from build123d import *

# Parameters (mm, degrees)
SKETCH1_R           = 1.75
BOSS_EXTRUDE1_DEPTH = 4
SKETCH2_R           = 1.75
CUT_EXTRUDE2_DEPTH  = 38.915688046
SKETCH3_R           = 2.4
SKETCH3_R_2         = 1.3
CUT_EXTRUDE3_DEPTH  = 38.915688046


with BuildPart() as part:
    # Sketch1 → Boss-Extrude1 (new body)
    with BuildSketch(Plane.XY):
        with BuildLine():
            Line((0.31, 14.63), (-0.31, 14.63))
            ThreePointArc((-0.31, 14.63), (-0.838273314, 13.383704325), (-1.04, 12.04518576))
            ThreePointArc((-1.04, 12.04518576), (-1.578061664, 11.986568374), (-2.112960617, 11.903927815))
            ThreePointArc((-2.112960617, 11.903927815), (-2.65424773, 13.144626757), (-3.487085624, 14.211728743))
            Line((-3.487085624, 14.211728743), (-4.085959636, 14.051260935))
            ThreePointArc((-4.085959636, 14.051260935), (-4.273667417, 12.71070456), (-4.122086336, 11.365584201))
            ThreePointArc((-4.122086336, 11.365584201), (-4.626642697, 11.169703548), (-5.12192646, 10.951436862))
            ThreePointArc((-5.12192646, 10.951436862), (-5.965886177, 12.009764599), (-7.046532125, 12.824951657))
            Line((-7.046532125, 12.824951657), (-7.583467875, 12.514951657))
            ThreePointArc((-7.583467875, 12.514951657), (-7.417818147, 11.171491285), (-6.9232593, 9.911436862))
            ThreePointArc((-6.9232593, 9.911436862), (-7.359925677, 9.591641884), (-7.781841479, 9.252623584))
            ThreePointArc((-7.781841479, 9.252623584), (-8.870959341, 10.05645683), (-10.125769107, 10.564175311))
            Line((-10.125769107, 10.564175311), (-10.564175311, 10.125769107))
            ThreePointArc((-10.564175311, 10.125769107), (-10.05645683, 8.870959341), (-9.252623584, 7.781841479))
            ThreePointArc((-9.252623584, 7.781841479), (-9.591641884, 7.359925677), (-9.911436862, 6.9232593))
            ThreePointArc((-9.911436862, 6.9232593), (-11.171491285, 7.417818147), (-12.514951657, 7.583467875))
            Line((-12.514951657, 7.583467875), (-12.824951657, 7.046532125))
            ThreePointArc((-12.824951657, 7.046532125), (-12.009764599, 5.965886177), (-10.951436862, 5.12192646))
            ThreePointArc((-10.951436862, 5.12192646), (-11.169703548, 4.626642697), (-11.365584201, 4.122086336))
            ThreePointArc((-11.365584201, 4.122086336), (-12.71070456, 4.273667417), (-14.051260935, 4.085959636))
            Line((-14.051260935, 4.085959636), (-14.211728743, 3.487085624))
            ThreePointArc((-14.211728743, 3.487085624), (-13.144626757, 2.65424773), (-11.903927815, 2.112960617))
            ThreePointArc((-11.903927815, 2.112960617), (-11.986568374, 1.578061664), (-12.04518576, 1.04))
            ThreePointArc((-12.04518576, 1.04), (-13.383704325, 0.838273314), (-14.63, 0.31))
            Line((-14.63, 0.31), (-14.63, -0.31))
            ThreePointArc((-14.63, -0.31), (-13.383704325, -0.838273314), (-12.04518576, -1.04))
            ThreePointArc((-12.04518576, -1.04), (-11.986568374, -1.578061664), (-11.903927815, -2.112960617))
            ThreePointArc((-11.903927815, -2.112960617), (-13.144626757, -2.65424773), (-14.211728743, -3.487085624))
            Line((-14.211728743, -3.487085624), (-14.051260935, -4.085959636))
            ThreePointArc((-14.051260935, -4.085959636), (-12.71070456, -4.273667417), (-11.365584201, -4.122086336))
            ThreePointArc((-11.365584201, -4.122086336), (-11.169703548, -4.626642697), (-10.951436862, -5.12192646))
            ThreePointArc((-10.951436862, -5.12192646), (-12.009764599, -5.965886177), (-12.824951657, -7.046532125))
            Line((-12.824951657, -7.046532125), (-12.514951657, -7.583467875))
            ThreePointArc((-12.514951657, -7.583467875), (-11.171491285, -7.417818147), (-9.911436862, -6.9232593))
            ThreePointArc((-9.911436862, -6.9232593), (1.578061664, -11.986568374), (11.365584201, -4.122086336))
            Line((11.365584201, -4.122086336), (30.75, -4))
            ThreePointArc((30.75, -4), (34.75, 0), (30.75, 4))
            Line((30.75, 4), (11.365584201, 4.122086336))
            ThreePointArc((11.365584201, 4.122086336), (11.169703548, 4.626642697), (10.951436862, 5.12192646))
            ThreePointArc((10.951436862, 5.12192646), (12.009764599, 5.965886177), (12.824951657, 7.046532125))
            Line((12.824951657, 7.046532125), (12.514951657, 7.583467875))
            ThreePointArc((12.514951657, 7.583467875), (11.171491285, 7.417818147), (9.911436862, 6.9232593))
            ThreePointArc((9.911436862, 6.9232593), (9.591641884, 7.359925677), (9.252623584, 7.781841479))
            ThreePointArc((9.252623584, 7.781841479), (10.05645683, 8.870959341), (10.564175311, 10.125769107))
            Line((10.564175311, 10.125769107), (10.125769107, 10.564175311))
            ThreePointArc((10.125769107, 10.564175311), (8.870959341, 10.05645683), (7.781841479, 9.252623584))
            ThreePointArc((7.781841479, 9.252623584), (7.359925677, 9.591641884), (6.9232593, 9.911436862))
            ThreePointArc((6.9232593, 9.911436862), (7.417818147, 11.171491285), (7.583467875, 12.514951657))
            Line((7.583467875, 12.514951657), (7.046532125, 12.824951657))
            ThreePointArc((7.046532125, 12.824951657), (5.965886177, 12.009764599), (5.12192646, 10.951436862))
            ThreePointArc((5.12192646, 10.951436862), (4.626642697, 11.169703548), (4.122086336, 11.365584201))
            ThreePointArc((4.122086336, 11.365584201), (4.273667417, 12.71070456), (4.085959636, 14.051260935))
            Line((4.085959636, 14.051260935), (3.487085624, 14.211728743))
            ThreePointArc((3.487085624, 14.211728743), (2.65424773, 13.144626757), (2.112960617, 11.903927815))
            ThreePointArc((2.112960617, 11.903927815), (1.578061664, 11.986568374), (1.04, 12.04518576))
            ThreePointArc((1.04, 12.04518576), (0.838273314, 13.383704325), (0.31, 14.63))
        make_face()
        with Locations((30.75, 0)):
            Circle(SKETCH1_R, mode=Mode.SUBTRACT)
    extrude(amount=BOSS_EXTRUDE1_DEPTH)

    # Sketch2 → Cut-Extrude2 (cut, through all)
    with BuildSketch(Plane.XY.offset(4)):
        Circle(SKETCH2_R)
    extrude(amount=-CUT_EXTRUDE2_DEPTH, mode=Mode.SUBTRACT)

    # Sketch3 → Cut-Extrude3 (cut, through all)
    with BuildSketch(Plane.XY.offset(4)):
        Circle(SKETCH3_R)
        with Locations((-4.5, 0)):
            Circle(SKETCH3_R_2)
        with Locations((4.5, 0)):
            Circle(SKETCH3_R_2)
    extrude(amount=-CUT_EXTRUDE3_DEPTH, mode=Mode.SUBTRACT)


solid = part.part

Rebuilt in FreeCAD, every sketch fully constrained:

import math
import FreeCAD as App
import Part
import Sketcher
Q = App.Units.Quantity

doc = App.newDocument("Part")
body = doc.addObject("PartDesign::Body", "Body")

sketch1 = doc.addObject("Sketcher::SketchObject", "Sketch")
body.addObject(sketch1)
sketch1.AttachmentSupport = (doc.XY_Plane, [""])
sketch1.MapMode = "FlatFace"
sketch1.addGeometry([
    Part.LineSegment(App.Vector(0.31, 14.63, 0), App.Vector(-0.31, 14.63, 0)),
    Part.ArcOfCircle(Part.Circle(App.Vector(4.358456, 11.916051, 0), App.Vector(0, 0, 1), 5.4), math.radians(149.828948), math.radians(178.629703)),
    Part.ArcOfCircle(Part.Circle(App.Vector(0, 0, 0), App.Vector(0, 0, 1), 12.09), math.radians(94.934768), math.radians(100.065232)),
    Part.ArcOfCircle(Part.Circle(App.Vector(-7.294046, 10.38197, 0), App.Vector(0, 0, 1), 5.4), math.radians(16.370297), math.radians(45.171052)),
    Part.LineSegment(App.Vector(-3.487086, 14.211729, 0), App.Vector(-4.08596, 14.051261, 0)),
    Part.ArcOfCircle(Part.Circle(App.Vector(1.125844, 12.638072, 0), App.Vector(0, 0, 1), 5.4), math.radians(164.828948), math.radians(193.629703)),
    Part.ArcOfCircle(Part.Circle(App.Vector(0, 0, 0), App.Vector(0, 0, 1), 12.09), math.radians(109.934768), math.radians(115.065232)),
    Part.ArcOfCircle(Part.Circle(App.Vector(-9.732559, 8.140375, 0), App.Vector(0, 0, 1), 5.4), math.radians(31.370297), math.radians(60.171052)),
    Part.LineSegment(App.Vector(-7.046532, 12.824952, 0), App.Vector(-7.583468, 12.514952, 0)),
    Part.ArcOfCircle(Part.Circle(App.Vector(-2.183492, 12.49883, 0), App.Vector(0, 0, 1), 5.4), math.radians(179.828948), math.radians(208.629703)),
    Part.ArcOfCircle(Part.Circle(App.Vector(0, 0, 0), App.Vector(0, 0, 1), 12.09), math.radians(124.934768), math.radians(130.065232)),
    Part.ArcOfCircle(Part.Circle(App.Vector(-11.507814, 5.344027, 0), App.Vector(0, 0, 1), 5.4), math.radians(46.370297), math.radians(75.171052)),
    Part.LineSegment(App.Vector(-10.125769, 10.564175, 0), App.Vector(-10.564175, 10.125769, 0)),
    Part.ArcOfCircle(Part.Circle(App.Vector(-5.344027, 11.507814, 0), App.Vector(0, 0, 1), 5.4), math.radians(-165.171052), math.radians(-136.370297)),
    Part.ArcOfCircle(Part.Circle(App.Vector(0, 0, 0), App.Vector(0, 0, 1), 12.09), math.radians(139.934768), math.radians(145.065232)),
    Part.ArcOfCircle(Part.Circle(App.Vector(-12.49883, 2.183492, 0), App.Vector(0, 0, 1), 5.4), math.radians(61.370297), math.radians(90.171052)),
    Part.LineSegment(App.Vector(-12.514952, 7.583468, 0), App.Vector(-12.824952, 7.046532, 0)),
    Part.ArcOfCircle(Part.Circle(App.Vector(-8.140375, 9.732559, 0), App.Vector(0, 0, 1), 5.4), math.radians(-150.171052), math.radians(-121.370297)),
    Part.ArcOfCircle(Part.Circle(App.Vector(0, 0, 0), App.Vector(0, 0, 1), 12.09), math.radians(154.934768), math.radians(160.065232)),
    Part.ArcOfCircle(Part.Circle(App.Vector(-12.638072, -1.125844, 0), App.Vector(0, 0, 1), 5.4), math.radians(76.370297), math.radians(105.171052)),
    Part.LineSegment(App.Vector(-14.051261, 4.08596, 0), App.Vector(-14.211729, 3.487086, 0)),
    Part.ArcOfCircle(Part.Circle(App.Vector(-10.38197, 7.294046, 0), App.Vector(0, 0, 1), 5.4), math.radians(-135.171052), math.radians(-106.370297)),
    Part.ArcOfCircle(Part.Circle(App.Vector(0, 0, 0), App.Vector(0, 0, 1), 12.09), math.radians(169.934768), math.radians(175.065232)),
    Part.ArcOfCircle(Part.Circle(App.Vector(-11.916051, -4.358456, 0), App.Vector(0, 0, 1), 5.4), math.radians(91.370297), math.radians(120.171052)),
    Part.LineSegment(App.Vector(-14.63, 0.31, 0), App.Vector(-14.63, -0.31, 0)),
    Part.ArcOfCircle(Part.Circle(App.Vector(-11.916051, 4.358456, 0), App.Vector(0, 0, 1), 5.4), math.radians(-120.171052), math.radians(-91.370297)),
    Part.ArcOfCircle(Part.Circle(App.Vector(0, 0, 0), App.Vector(0, 0, 1), 12.09), math.radians(-175.065232), math.radians(-169.934768)),
    Part.ArcOfCircle(Part.Circle(App.Vector(-10.38197, -7.294046, 0), App.Vector(0, 0, 1), 5.4), math.radians(106.370297), math.radians(135.171052)),
    Part.LineSegment(App.Vector(-14.211729, -3.487086, 0), App.Vector(-14.051261, -4.08596, 0)),
    Part.ArcOfCircle(Part.Circle(App.Vector(-12.638072, 1.125844, 0), App.Vector(0, 0, 1), 5.4), math.radians(-105.171052), math.radians(-76.370297)),
    Part.ArcOfCircle(Part.Circle(App.Vector(0, 0, 0), App.Vector(0, 0, 1), 12.09), math.radians(-160.065232), math.radians(-154.934768)),
    Part.ArcOfCircle(Part.Circle(App.Vector(-8.140375, -9.732559, 0), App.Vector(0, 0, 1), 5.4), math.radians(121.370297), math.radians(150.171052)),
    Part.LineSegment(App.Vector(-12.824952, -7.046532, 0), App.Vector(-12.514952, -7.583468, 0)),
    Part.ArcOfCircle(Part.Circle(App.Vector(-12.49883, -2.183492, 0), App.Vector(0, 0, 1), 5.4), math.radians(-90.171052), math.radians(-61.370297)),
    Part.ArcOfCircle(Part.Circle(App.Vector(0, 0, 0), App.Vector(0, 0, 1), 12.09), math.radians(-145.065232), math.radians(-19.934768)),
    Part.LineSegment(App.Vector(11.365584, -4.122086, 0), App.Vector(30.75, -4, 0)),
    Part.ArcOfCircle(Part.Circle(App.Vector(30.75, 0, 0), App.Vector(0, 0, 1), 4), math.radians(-90), math.radians(90)),
    Part.LineSegment(App.Vector(30.75, 4, 0), App.Vector(11.365584, 4.122086, 0)),
    Part.ArcOfCircle(Part.Circle(App.Vector(0, 0, 0), App.Vector(0, 0, 1), 12.09), math.radians(19.934768), math.radians(25.065232)),
    Part.ArcOfCircle(Part.Circle(App.Vector(8.140375, 9.732559, 0), App.Vector(0, 0, 1), 5.4), math.radians(-58.629703), math.radians(-29.828948)),
    Part.LineSegment(App.Vector(12.824952, 7.046532, 0), App.Vector(12.514952, 7.583468, 0)),
    Part.ArcOfCircle(Part.Circle(App.Vector(12.49883, 2.183492, 0), App.Vector(0, 0, 1), 5.4), math.radians(89.828948), math.radians(118.629703)),
    Part.ArcOfCircle(Part.Circle(App.Vector(0, 0, 0), App.Vector(0, 0, 1), 12.09), math.radians(34.934768), math.radians(40.065232)),
    Part.ArcOfCircle(Part.Circle(App.Vector(5.344027, 11.507814, 0), App.Vector(0, 0, 1), 5.4), math.radians(-43.629703), math.radians(-14.828948)),
    Part.LineSegment(App.Vector(10.564175, 10.125769, 0), App.Vector(10.125769, 10.564175, 0)),
    Part.ArcOfCircle(Part.Circle(App.Vector(11.507814, 5.344027, 0), App.Vector(0, 0, 1), 5.4), math.radians(104.828948), math.radians(133.629703)),
    Part.ArcOfCircle(Part.Circle(App.Vector(0, 0, 0), App.Vector(0, 0, 1), 12.09), math.radians(49.934768), math.radians(55.065232)),
    Part.ArcOfCircle(Part.Circle(App.Vector(2.183492, 12.49883, 0), App.Vector(0, 0, 1), 5.4), math.radians(-28.629703), math.radians(0.171052)),
    Part.LineSegment(App.Vector(7.583468, 12.514952, 0), App.Vector(7.046532, 12.824952, 0)),
    Part.ArcOfCircle(Part.Circle(App.Vector(9.732559, 8.140375, 0), App.Vector(0, 0, 1), 5.4), math.radians(119.828948), math.radians(148.629703)),
    Part.ArcOfCircle(Part.Circle(App.Vector(0, 0, 0), App.Vector(0, 0, 1), 12.09), math.radians(64.934768), math.radians(70.065232)),
    Part.ArcOfCircle(Part.Circle(App.Vector(-1.125844, 12.638072, 0), App.Vector(0, 0, 1), 5.4), math.radians(-13.629703), math.radians(15.171052)),
    Part.LineSegment(App.Vector(4.08596, 14.051261, 0), App.Vector(3.487086, 14.211729, 0)),
    Part.ArcOfCircle(Part.Circle(App.Vector(7.294046, 10.38197, 0), App.Vector(0, 0, 1), 5.4), math.radians(134.828948), math.radians(163.629703)),
    Part.ArcOfCircle(Part.Circle(App.Vector(0, 0, 0), App.Vector(0, 0, 1), 12.09), math.radians(79.934768), math.radians(85.065232)),
    Part.ArcOfCircle(Part.Circle(App.Vector(-4.358456, 11.916051, 0), App.Vector(0, 0, 1), 5.4), math.radians(1.370297), math.radians(30.171052)),
    Part.Circle(App.Vector(30.75, 0, 0), App.Vector(0, 0, 1), 1.75),
], False)
sketch1.addConstraint([
    Sketcher.Constraint("Coincident", 0, 2, 1, 1),
    Sketcher.Constraint("Coincident", 1, 2, 2, 1),
    Sketcher.Constraint("Coincident", 2, 2, 3, 1),
    Sketcher.Constraint("Coincident", 3, 2, 4, 1),
    Sketcher.Constraint("Coincident", 4, 2, 5, 1),
    Sketcher.Constraint("Coincident", 5, 2, 6, 1),
    Sketcher.Constraint("Coincident", 6, 2, 7, 1),
    Sketcher.Constraint("Coincident", 7, 2, 8, 1),
    Sketcher.Constraint("Coincident", 8, 2, 9, 1),
    Sketcher.Constraint("Coincident", 9, 2, 10, 1),
    Sketcher.Constraint("Coincident", 10, 2, 11, 1),
    Sketcher.Constraint("Coincident", 11, 2, 12, 1),
    Sketcher.Constraint("Coincident", 12, 2, 13, 1),
    Sketcher.Constraint("Coincident", 13, 2, 14, 1),
    Sketcher.Constraint("Coincident", 14, 2, 15, 1),
    Sketcher.Constraint("Coincident", 15, 2, 16, 1),
    Sketcher.Constraint("Coincident", 16, 2, 17, 1),
    Sketcher.Constraint("Coincident", 17, 2, 18, 1),
    Sketcher.Constraint("Coincident", 18, 2, 19, 1),
    Sketcher.Constraint("Coincident", 19, 2, 20, 1),
    Sketcher.Constraint("Coincident", 20, 2, 21, 1),
    Sketcher.Constraint("Coincident", 21, 2, 22, 1),
    Sketcher.Constraint("Coincident", 22, 2, 23, 1),
    Sketcher.Constraint("Coincident", 23, 2, 24, 1),
    Sketcher.Constraint("Coincident", 24, 2, 25, 1),
    Sketcher.Constraint("Coincident", 25, 2, 26, 1),
    Sketcher.Constraint("Coincident", 26, 2, 27, 1),
    Sketcher.Constraint("Coincident", 27, 2, 28, 1),
    Sketcher.Constraint("Coincident", 28, 2, 29, 1),
    Sketcher.Constraint("Coincident", 29, 2, 30, 1),
    Sketcher.Constraint("Coincident", 30, 2, 31, 1),
    Sketcher.Constraint("Coincident", 31, 2, 32, 1),
    Sketcher.Constraint("Coincident", 32, 2, 33, 1),
    Sketcher.Constraint("Coincident", 33, 2, 34, 1),
    Sketcher.Constraint("Coincident", 34, 2, 35, 1),
    Sketcher.Constraint("Coincident", 35, 2, 36, 1),
    Sketcher.Constraint("Coincident", 36, 2, 37, 1),
    Sketcher.Constraint("Coincident", 37, 2, 38, 1),
    Sketcher.Constraint("Coincident", 38, 2, 39, 1),
    Sketcher.Constraint("Coincident", 39, 2, 40, 1),
    Sketcher.Constraint("Coincident", 40, 2, 41, 1),
    Sketcher.Constraint("Coincident", 41, 2, 42, 1),
    Sketcher.Constraint("Coincident", 42, 2, 43, 1),
    Sketcher.Constraint("Coincident", 43, 2, 44, 1),
    Sketcher.Constraint("Coincident", 44, 2, 45, 1),
    Sketcher.Constraint("Coincident", 45, 2, 46, 1),
    Sketcher.Constraint("Coincident", 46, 2, 47, 1),
    Sketcher.Constraint("Coincident", 47, 2, 48, 1),
    Sketcher.Constraint("Coincident", 48, 2, 49, 1),
    Sketcher.Constraint("Coincident", 49, 2, 50, 1),
    Sketcher.Constraint("Coincident", 50, 2, 51, 1),
    Sketcher.Constraint("Coincident", 51, 2, 52, 1),
    Sketcher.Constraint("Coincident", 52, 2, 53, 1),
    Sketcher.Constraint("Coincident", 53, 2, 54, 1),
    Sketcher.Constraint("Coincident", 54, 2, 55, 1),
    Sketcher.Constraint("Coincident", 55, 2, 0, 1),
    Sketcher.Constraint("Horizontal", 0),
    Sketcher.Constraint("Vertical", 24),
    Sketcher.Constraint("Coincident", 2, 3, -1, 1),
    Sketcher.Constraint("Coincident", 6, 3, -1, 1),
    Sketcher.Constraint("Coincident", 10, 3, -1, 1),
    Sketcher.Constraint("Coincident", 14, 3, -1, 1),
    Sketcher.Constraint("Coincident", 18, 3, -1, 1),
    Sketcher.Constraint("Coincident", 22, 3, -1, 1),
    Sketcher.Constraint("Coincident", 26, 3, -1, 1),
    Sketcher.Constraint("Coincident", 30, 3, -1, 1),
    Sketcher.Constraint("Coincident", 34, 3, -1, 1),
    Sketcher.Constraint("Coincident", 38, 3, -1, 1),
    Sketcher.Constraint("Coincident", 42, 3, -1, 1),
    Sketcher.Constraint("Coincident", 46, 3, -1, 1),
    Sketcher.Constraint("Coincident", 50, 3, -1, 1),
    Sketcher.Constraint("Coincident", 54, 3, -1, 1),
    Sketcher.Constraint("Coincident", 56, 3, 36, 3),
    Sketcher.Constraint("Equal", 1, 3),
    Sketcher.Constraint("Equal", 3, 5),
    Sketcher.Constraint("Equal", 2, 6),
    Sketcher.Constraint("Equal", 5, 7),
    Sketcher.Constraint("Equal", 7, 9),
    Sketcher.Constraint("Equal", 6, 10),
    Sketcher.Constraint("Equal", 9, 11),
    Sketcher.Constraint("Equal", 11, 13),
    Sketcher.Constraint("Equal", 10, 14),
    Sketcher.Constraint("Equal", 13, 15),
    Sketcher.Constraint("Equal", 15, 17),
    Sketcher.Constraint("Equal", 14, 18),
    Sketcher.Constraint("Equal", 17, 19),
    Sketcher.Constraint("Equal", 19, 21),
    Sketcher.Constraint("Equal", 18, 22),
    Sketcher.Constraint("Equal", 21, 23),
    Sketcher.Constraint("Equal", 23, 25),
    Sketcher.Constraint("Equal", 22, 26),
    Sketcher.Constraint("Equal", 25, 27),
    Sketcher.Constraint("Equal", 27, 29),
    Sketcher.Constraint("Equal", 26, 30),
    Sketcher.Constraint("Equal", 29, 31),
    Sketcher.Constraint("Equal", 31, 33),
    Sketcher.Constraint("Equal", 30, 34),
    Sketcher.Constraint("Equal", 34, 38),
    Sketcher.Constraint("Equal", 33, 39),
    Sketcher.Constraint("Equal", 39, 41),
    Sketcher.Constraint("Equal", 38, 42),
    Sketcher.Constraint("Equal", 41, 43),
    Sketcher.Constraint("Equal", 43, 45),
    Sketcher.Constraint("Equal", 42, 46),
    Sketcher.Constraint("Equal", 45, 47),
    Sketcher.Constraint("Equal", 47, 49),
    Sketcher.Constraint("Equal", 46, 50),
    Sketcher.Constraint("Equal", 49, 51),
    Sketcher.Constraint("Equal", 51, 53),
    Sketcher.Constraint("Equal", 50, 54),
    Sketcher.Constraint("Equal", 53, 55),
    Sketcher.Constraint("Symmetric", 31, 3, 39, 3, -1, 1),
    Sketcher.Constraint("Symmetric", 33, 3, 41, 3, -1, 1),
    Sketcher.Constraint("Symmetric", 17, 3, 39, 3, -2),
    Sketcher.Constraint("Symmetric", 15, 3, 41, 3, -2),
    Sketcher.Constraint("Symmetric", 13, 3, 43, 3, -2),
    Sketcher.Constraint("Symmetric", 11, 3, 45, 3, -2),
    Sketcher.Constraint("Symmetric", 9, 3, 47, 3, -2),
    Sketcher.Constraint("Symmetric", 7, 3, 49, 3, -2),
    Sketcher.Constraint("Symmetric", 5, 3, 51, 3, -2),
    Sketcher.Constraint("Symmetric", 3, 3, 53, 3, -2),
    Sketcher.Constraint("Symmetric", 1, 3, 55, 3, -2),
    Sketcher.Constraint("Symmetric", 23, 3, 25, 3, -1),
    Sketcher.Constraint("Symmetric", 21, 3, 27, 3, -1),
    Sketcher.Constraint("Symmetric", 19, 3, 29, 3, -1),
    Sketcher.Constraint("Symmetric", 35, 2, 36, 2, -1),
    Sketcher.Constraint("Perpendicular", 4, 28),
    Sketcher.Constraint("Perpendicular", 8, 32),
    Sketcher.Constraint("Parallel", 32, 40),
    Sketcher.Constraint("Perpendicular", 12, 44),
    Sketcher.Constraint("Perpendicular", 16, 48),
    Sketcher.Constraint("Perpendicular", 20, 52),
    Sketcher.Constraint("Horizontal", 29, 2, 34, 2),
    Sketcher.Constraint("Horizontal", 18, 2, 37, 2),
    Sketcher.Constraint("Horizontal", 16, 2, 39, 2),
    Sketcher.Constraint("Horizontal", 12, 2, 43, 2),
    Sketcher.Constraint("Horizontal", 11, 2, 44, 2),
    Sketcher.Constraint("Horizontal", 8, 2, 47, 2),
    Sketcher.Constraint("Horizontal", 7, 2, 48, 2),
    Sketcher.Constraint("Horizontal", 4, 2, 51, 2),
    Sketcher.Constraint("Horizontal", 3, 2, 52, 2),
    Sketcher.Constraint("Vertical", 20, 2, 27, 2),
    Sketcher.Constraint("Vertical", 16, 2, 31, 2),
    Sketcher.Constraint("Vertical", 56, 3, 35, 2),
    Sketcher.Constraint("Equal", 0, 24),
    Sketcher.Constraint("Equal", 4, 8),
    Sketcher.Constraint("Equal", 8, 12),
    Sketcher.Constraint("Equal", 12, 16),
    Sketcher.Constraint("Equal", 16, 20),
    Sketcher.Constraint("Radius", 36, Q("4 mm")),
    Sketcher.Constraint("Diameter", 56, Q("3.5 mm")),
    Sketcher.Constraint("Radius", 1, Q("5.4 mm")),
    Sketcher.Constraint("Angle", 4, Q("-165 deg")),
    Sketcher.Constraint("Angle", 8, Q("-150 deg")),
    Sketcher.Constraint("Radius", 2, Q("12.09 mm")),
    Sketcher.Constraint("DistanceX", 0, 2, 0, 1, Q("0.62 mm")),
    Sketcher.Constraint("Distance", 4, Q("0.62 mm")),
    Sketcher.Constraint("DistanceX", -1, 1, 36, 3, Q("30.75 mm")),
    Sketcher.Constraint("DistanceY", -1, 1, 0, 2, Q("14.63 mm")),
    Sketcher.Constraint("DistanceX", 1, 2, -1, 1, Q("1.04 mm")),
    Sketcher.Constraint("DistanceY", -1, 1, 22, 2, Q("1.04 mm")),
    Sketcher.Constraint("DistanceX", 23, 2, -1, 1, Q("14.63 mm")),
    Sketcher.Constraint("Distance", 35, Q("19.3848 mm")),
    Sketcher.Constraint("DistanceY", -1, 1, 3, 3, Q("10.38197 mm")),
    Sketcher.Constraint("DistanceX", 7, 3, -1, 1, Q("9.732559 mm")),
    Sketcher.Constraint("DistanceX", 9, 3, -1, 1, Q("2.183492 mm")),
    Sketcher.Constraint("DistanceY", -1, 1, 9, 3, Q("12.49883 mm")),
    Sketcher.Constraint("DistanceX", 15, 3, -1, 1, Q("12.49883 mm")),
    Sketcher.Constraint("DistanceY", -1, 1, 15, 3, Q("2.183492 mm")),
    Sketcher.Constraint("DistanceY", -1, 1, 17, 3, Q("9.732559 mm")),
    Sketcher.Constraint("DistanceX", 21, 3, -1, 1, Q("10.38197 mm")),
    Sketcher.Constraint("DistanceX", 2, 2, -1, 1, Q("2.112961 mm")),
    Sketcher.Constraint("DistanceY", -1, 1, 3, 2, Q("14.211729 mm")),
    Sketcher.Constraint("DistanceY", -1, 1, 7, 2, Q("12.824952 mm")),
    Sketcher.Constraint("DistanceX", 10, 2, -1, 1, Q("7.781841 mm")),
    Sketcher.Constraint("DistanceX", 11, 2, -1, 1, Q("10.125769 mm")),
    Sketcher.Constraint("DistanceY", -1, 1, 12, 2, Q("10.125769 mm")),
    Sketcher.Constraint("DistanceY", -1, 1, 13, 2, Q("7.781841 mm")),
    Sketcher.Constraint("DistanceX", 15, 2, -1, 1, Q("12.514952 mm")),
    Sketcher.Constraint("DistanceX", 19, 2, -1, 1, Q("14.051261 mm")),
    Sketcher.Constraint("DistanceY", -1, 1, 19, 2, Q("4.08596 mm")),
    Sketcher.Constraint("DistanceX", -1, 1, 5, 3, Q("1.125844 mm")),
])
pad1 = doc.addObject("PartDesign::Pad", "Pad")
body.addObject(pad1)
pad1.Profile = sketch1
pad1.Length = 4

sketch2 = doc.addObject("Sketcher::SketchObject", "Sketch001")
body.addObject(sketch2)
sketch2.AttachmentSupport = (doc.XY_Plane, [""])
sketch2.MapMode = "FlatFace"
sketch2.AttachmentOffset = App.Placement(App.Vector(0, 0, 4), App.Rotation())
sketch2.addGeometry(Part.Circle(App.Vector(0, 0, 0), App.Vector(0, 0, 1), 1.75), False)
sketch2.addConstraint([
    Sketcher.Constraint("Coincident", 0, 3, -1, 1),
    Sketcher.Constraint("Diameter", 0, Q("3.5 mm")),
])
pocket1 = doc.addObject("PartDesign::Pocket", "Pocket")
body.addObject(pocket1)
pocket1.Profile = sketch2
pocket1.Type = "ThroughAll"

sketch3 = doc.addObject("Sketcher::SketchObject", "Sketch002")
body.addObject(sketch3)
sketch3.AttachmentSupport = (doc.XY_Plane, [""])
sketch3.MapMode = "FlatFace"
sketch3.AttachmentOffset = App.Placement(App.Vector(0, 0, 4), App.Rotation())
sketch3.addGeometry([
    Part.Circle(App.Vector(0, 0, 0), App.Vector(0, 0, 1), 2.4),
    Part.Circle(App.Vector(-4.5, 0, 0), App.Vector(0, 0, 1), 1.3),
    Part.Circle(App.Vector(4.5, 0, 0), App.Vector(0, 0, 1), 1.3),
], False)
sketch3.addConstraint([
    Sketcher.Constraint("Coincident", 0, 3, -1, 1),
    Sketcher.Constraint("Equal", 1, 2),
    Sketcher.Constraint("Symmetric", 1, 3, 2, 3, -1, 1),
    Sketcher.Constraint("PointOnObject", 1, 3, -1),
    Sketcher.Constraint("Diameter", 0, Q("4.8 mm")),
    Sketcher.Constraint("Diameter", 1, Q("2.6 mm")),
    Sketcher.Constraint("DistanceX", 1, 3, 2, 3, Q("9 mm")),
])
pocket2 = doc.addObject("PartDesign::Pocket", "Pocket001")
body.addObject(pocket2)
pocket2.Profile = sketch3
pocket2.Type = "ThroughAll"

doc.recompute()
